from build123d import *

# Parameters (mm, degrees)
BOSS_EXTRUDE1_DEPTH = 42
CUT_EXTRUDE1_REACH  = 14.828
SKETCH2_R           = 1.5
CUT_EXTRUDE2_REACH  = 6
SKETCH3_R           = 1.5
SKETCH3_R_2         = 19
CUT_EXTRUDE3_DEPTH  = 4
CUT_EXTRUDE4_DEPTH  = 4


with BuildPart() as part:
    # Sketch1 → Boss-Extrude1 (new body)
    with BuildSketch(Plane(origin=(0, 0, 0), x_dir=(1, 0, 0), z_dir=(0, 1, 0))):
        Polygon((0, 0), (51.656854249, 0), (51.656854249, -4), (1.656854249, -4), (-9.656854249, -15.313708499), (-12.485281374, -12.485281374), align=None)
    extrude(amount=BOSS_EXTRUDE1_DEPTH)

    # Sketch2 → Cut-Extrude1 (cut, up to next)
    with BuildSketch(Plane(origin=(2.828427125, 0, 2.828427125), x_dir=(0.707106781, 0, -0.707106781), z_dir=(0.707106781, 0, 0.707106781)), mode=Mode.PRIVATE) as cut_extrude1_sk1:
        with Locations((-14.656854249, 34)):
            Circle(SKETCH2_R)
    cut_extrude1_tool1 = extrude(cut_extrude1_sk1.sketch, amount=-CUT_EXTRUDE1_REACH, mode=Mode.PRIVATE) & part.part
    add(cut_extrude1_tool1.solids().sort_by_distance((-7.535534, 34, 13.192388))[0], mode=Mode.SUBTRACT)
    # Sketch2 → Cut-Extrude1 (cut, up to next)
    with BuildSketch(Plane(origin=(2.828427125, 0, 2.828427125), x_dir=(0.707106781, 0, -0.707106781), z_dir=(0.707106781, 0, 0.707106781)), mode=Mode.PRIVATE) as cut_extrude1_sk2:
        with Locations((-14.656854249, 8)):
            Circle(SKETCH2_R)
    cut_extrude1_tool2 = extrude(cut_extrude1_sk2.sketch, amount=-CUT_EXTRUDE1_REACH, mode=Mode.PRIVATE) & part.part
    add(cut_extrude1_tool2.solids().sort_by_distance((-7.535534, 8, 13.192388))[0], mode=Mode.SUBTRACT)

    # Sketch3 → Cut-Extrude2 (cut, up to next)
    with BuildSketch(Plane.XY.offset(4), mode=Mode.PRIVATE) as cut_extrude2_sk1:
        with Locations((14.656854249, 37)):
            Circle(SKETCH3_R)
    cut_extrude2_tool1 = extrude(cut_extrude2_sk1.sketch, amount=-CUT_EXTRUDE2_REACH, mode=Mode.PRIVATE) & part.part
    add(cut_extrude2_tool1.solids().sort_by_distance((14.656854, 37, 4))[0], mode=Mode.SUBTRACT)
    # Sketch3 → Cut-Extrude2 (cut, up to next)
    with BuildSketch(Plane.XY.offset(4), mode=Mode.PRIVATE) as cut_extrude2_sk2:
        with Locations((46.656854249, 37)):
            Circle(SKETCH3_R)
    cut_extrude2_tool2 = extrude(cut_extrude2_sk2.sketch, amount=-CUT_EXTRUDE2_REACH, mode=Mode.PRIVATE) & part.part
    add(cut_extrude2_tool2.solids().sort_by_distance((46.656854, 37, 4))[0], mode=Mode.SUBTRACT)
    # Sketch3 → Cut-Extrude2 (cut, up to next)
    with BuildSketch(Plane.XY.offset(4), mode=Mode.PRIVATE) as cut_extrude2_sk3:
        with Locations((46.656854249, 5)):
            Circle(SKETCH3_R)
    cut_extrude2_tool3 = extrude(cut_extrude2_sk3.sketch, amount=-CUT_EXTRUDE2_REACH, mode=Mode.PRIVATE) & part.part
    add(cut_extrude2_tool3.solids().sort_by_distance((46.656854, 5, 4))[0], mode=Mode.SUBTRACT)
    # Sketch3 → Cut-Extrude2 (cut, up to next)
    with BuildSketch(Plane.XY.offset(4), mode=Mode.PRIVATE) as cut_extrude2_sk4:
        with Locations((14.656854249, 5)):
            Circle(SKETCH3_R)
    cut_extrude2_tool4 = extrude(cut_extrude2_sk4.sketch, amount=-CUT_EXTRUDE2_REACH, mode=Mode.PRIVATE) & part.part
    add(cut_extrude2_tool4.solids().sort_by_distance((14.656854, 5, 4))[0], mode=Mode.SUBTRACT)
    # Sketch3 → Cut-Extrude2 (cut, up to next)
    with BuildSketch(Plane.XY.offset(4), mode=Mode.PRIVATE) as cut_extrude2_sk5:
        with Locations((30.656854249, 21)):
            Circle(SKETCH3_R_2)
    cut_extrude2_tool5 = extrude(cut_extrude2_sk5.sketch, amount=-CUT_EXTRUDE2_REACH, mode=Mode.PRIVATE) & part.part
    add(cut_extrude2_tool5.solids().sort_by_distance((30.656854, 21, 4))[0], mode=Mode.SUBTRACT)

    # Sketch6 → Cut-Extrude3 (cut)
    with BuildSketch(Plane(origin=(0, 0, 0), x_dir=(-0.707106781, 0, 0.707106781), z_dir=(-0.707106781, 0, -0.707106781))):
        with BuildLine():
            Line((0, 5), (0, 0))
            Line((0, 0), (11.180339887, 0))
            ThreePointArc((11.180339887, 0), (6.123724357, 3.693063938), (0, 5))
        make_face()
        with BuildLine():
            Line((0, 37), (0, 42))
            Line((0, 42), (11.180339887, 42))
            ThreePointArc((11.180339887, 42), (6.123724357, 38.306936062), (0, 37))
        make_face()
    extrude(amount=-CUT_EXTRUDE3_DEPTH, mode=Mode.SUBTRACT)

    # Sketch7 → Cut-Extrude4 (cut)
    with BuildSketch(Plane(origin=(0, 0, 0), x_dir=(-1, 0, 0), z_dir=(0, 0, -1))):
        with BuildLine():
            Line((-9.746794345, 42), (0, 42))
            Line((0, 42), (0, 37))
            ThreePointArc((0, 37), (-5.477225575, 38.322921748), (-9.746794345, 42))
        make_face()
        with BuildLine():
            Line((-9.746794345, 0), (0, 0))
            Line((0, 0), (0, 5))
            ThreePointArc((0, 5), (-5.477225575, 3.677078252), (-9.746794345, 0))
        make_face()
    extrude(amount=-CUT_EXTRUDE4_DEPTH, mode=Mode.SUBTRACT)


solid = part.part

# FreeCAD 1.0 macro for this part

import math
import FreeCAD as App
import Part
import Sketcher

V = App.Vector
Q = App.Units.Quantity

doc = App.newDocument("Part")
body = doc.addObject("PartDesign::Body", "Body")

# Sketch on XZ plane
sketch1 = body.newObject("Sketcher::SketchObject", "Sketch")
sketch1.AttachmentSupport = (doc.getObject("XZ_Plane"), [""])
sketch1.MapMode = "FlatFace"
sketch1.addGeometry([
    Part.LineSegment(V(51.656854, 0, 0), V(0, 0, 0)),  # 0
    Part.LineSegment(V(0, 0, 0), V(-12.485281, 12.485281, 0)),  # 1
    Part.LineSegment(V(-12.485281, 12.485281, 0), V(-9.656854, 15.313708, 0)),  # 2
    Part.LineSegment(V(-9.656854, 15.313708, 0), V(1.656854, 4, 0)),  # 3
    Part.LineSegment(V(1.656854, 4, 0), V(51.656854, 4, 0)),  # 4
    Part.LineSegment(V(51.656854, 4, 0), V(51.656854, 0, 0)),  # 5
], False)
sketch1.addConstraint([
    Sketcher.Constraint("Coincident", 0, 2, 1, 1),
    Sketcher.Constraint("Coincident", 1, 2, 2, 1),
    Sketcher.Constraint("Coincident", 2, 2, 3, 1),
    Sketcher.Constraint("Coincident", 3, 2, 4, 1),
    Sketcher.Constraint("Coincident", 4, 2, 5, 1),
    Sketcher.Constraint("Coincident", 5, 2, 0, 1),
    Sketcher.Constraint("Horizontal", 0),
    Sketcher.Constraint("Horizontal", 4),
    Sketcher.Constraint("Vertical", 5),
    Sketcher.Constraint("Coincident", 0, 2, -1, 1),
    Sketcher.Constraint("Perpendicular", 1, 2),
    Sketcher.Constraint("Perpendicular", 2, 3),
    Sketcher.Constraint("DistanceX", 4, 1, 4, 2, 50.0),
    Sketcher.Constraint("DistanceY", 5, 2, 5, 1, 4.0),
    Sketcher.Constraint("Angle", 1, Q("135 deg")),
    Sketcher.Constraint("Distance", 2, 4.0),
    Sketcher.Constraint("Distance", 3, 16.0),
])
pad1 = body.newObject("PartDesign::Pad", "Pad")
pad1.Profile = sketch1
pad1.Length = 42
pad1.Reversed = True

# Sketch on an angled plane
sketch2 = body.newObject("Sketcher::SketchObject", "Sketch001")
sketch2.Placement = App.Placement(V(2.828427, 0, 2.828427), App.Rotation(V(0.707106781, 0, -0.707106781), V(0, 0.999999999, 0), V(0.707106781, 0, 0.707106781), "ZXY"))
sketch2.addGeometry(Part.Circle(V(-14.656854, 34, 0), V(0, 0, 1), 1.5), False)
sketch2.addConstraint([
    Sketcher.Constraint("Diameter", 0, 3.0),
    Sketcher.Constraint("DistanceY", -1, 1, 0, 3, 34.0),
    Sketcher.Constraint("DistanceX", 0, 3, -1, 1, 14.656854),
])
pocket1 = body.newObject("PartDesign::Pocket", "Pocket")
pocket1.Profile = sketch2
pocket1.Type = "UpToFirst"

# Sketch on an angled plane
sketch3 = body.newObject("Sketcher::SketchObject", "Sketch002")
sketch3.Placement = App.Placement(V(2.828427, 0, 2.828427), App.Rotation(V(0.707106781, 0, -0.707106781), V(0, 0.999999999, 0), V(0.707106781, 0, 0.707106781), "ZXY"))
sketch3.addGeometry(Part.Circle(V(-14.656854, 8, 0), V(0, 0, 1), 1.5), False)
sketch3.addConstraint([
    Sketcher.Constraint("Diameter", 0, 3.0),
    Sketcher.Constraint("DistanceY", -1, 1, 0, 3, 8.0),
    Sketcher.Constraint("DistanceX", 0, 3, -1, 1, 14.656854),
])
pocket2 = body.newObject("PartDesign::Pocket", "Pocket001")
pocket2.Profile = sketch3
pocket2.Type = "UpToFirst"

# Sketch on XY plane
sketch4 = body.newObject("Sketcher::SketchObject", "Sketch003")
sketch4.AttachmentSupport = (doc.getObject("XY_Plane"), [""])
sketch4.MapMode = "FlatFace"
sketch4.AttachmentOffset = App.Placement(V(0, 0, 4), App.Rotation())
sketch4.addGeometry(Part.Circle(V(14.656854, 37, 0), V(0, 0, 1), 1.5), False)
sketch4.addConstraint([
    Sketcher.Constraint("Diameter", 0, 3.0),
    Sketcher.Constraint("DistanceY", -1, 1, 0, 3, 37.0),
    Sketcher.Constraint("DistanceX", -1, 1, 0, 3, 14.656854),
])
pocket3 = body.newObject("PartDesign::Pocket", "Pocket002")
pocket3.Profile = sketch4
pocket3.Type = "UpToFirst"

# Sketch on XY plane
sketch5 = body.newObject("Sketcher::SketchObject", "Sketch004")
sketch5.AttachmentSupport = (doc.getObject("XY_Plane"), [""])
sketch5.MapMode = "FlatFace"
sketch5.AttachmentOffset = App.Placement(V(0, 0, 4), App.Rotation())
sketch5.addGeometry(Part.Circle(V(46.656854, 37, 0), V(0, 0, 1), 1.5), False)
sketch5.addConstraint([
    Sketcher.Constraint("Diameter", 0, 3.0),
    Sketcher.Constraint("DistanceY", -1, 1, 0, 3, 37.0),
    Sketcher.Constraint("DistanceX", -1, 1, 0, 3, 46.656854),
])
pocket4 = body.newObject("PartDesign::Pocket", "Pocket003")
pocket4.Profile = sketch5
pocket4.Type = "UpToFirst"

# Sketch on XY plane
sketch6 = body.newObject("Sketcher::SketchObject", "Sketch005")
sketch6.AttachmentSupport = (doc.getObject("XY_Plane"), [""])
sketch6.MapMode = "FlatFace"
sketch6.AttachmentOffset = App.Placement(V(0, 0, 4), App.Rotation())
sketch6.addGeometry(Part.Circle(V(46.656854, 5, 0), V(0, 0, 1), 1.5), False)
sketch6.addConstraint([
    Sketcher.Constraint("Diameter", 0, 3.0),
    Sketcher.Constraint("DistanceY", -1, 1, 0, 3, 5.0),
    Sketcher.Constraint("DistanceX", -1, 1, 0, 3, 46.656854),
])
pocket5 = body.newObject("PartDesign::Pocket", "Pocket004")
pocket5.Profile = sketch6
pocket5.Type = "UpToFirst"

# Sketch on XY plane
sketch7 = body.newObject("Sketcher::SketchObject", "Sketch006")
sketch7.AttachmentSupport = (doc.getObject("XY_Plane"), [""])
sketch7.MapMode = "FlatFace"
sketch7.AttachmentOffset = App.Placement(V(0, 0, 4), App.Rotation())
sketch7.addGeometry(Part.Circle(V(14.656854, 5, 0), V(0, 0, 1), 1.5), False)
sketch7.addConstraint([
    Sketcher.Constraint("Diameter", 0, 3.0),
    Sketcher.Constraint("DistanceY", -1, 1, 0, 3, 5.0),
    Sketcher.Constraint("DistanceX", -1, 1, 0, 3, 14.656854),
])
pocket6 = body.newObject("PartDesign::Pocket", "Pocket005")
pocket6.Profile = sketch7
pocket6.Type = "UpToFirst"

# Sketch on XY plane
sketch8 = body.newObject("Sketcher::SketchObject", "Sketch007")
sketch8.AttachmentSupport = (doc.getObject("XY_Plane"), [""])
sketch8.MapMode = "FlatFace"
sketch8.AttachmentOffset = App.Placement(V(0, 0, 4), App.Rotation())
sketch8.addGeometry(Part.Circle(V(30.656854, 21, 0), V(0, 0, 1), 19), False)
sketch8.addConstraint([
    Sketcher.Constraint("Diameter", 0, 38.0),
    Sketcher.Constraint("DistanceY", -1, 1, 0, 3, 21.0),
    Sketcher.Constraint("DistanceX", -1, 1, 0, 3, 30.656854),
])
pocket7 = body.newObject("PartDesign::Pocket", "Pocket006")
pocket7.Profile = sketch8
pocket7.Type = "UpToFirst"

# Sketch on an angled plane
sketch9 = body.newObject("Sketcher::SketchObject", "Sketch008")
sketch9.Placement = App.Placement(V(0, 0, 0), App.Rotation(V(-0.707106781, 0, 0.707106781), V(0, 0.999999999, 0), V(-0.707106781, 0, -0.707106781), "ZXY"))
sketch9.addGeometry([
    Part.LineSegment(V(0, 5, 0), V(0, 0, 0)),  # 0
    Part.LineSegment(V(0, 0, 0), V(11.18034, 0, 0)),  # 1
    Part.ArcOfCircle(Part.Circle(V(0, -10, 0), V(0, 0, 1), 15), math.radians(41.810315), math.radians(90)),  # 2
    Part.LineSegment(V(0, 42, 0), V(0, 37, 0)),  # 3
    Part.ArcOfCircle(Part.Circle(V(0, 52, 0), V(0, 0, 1), 15), math.radians(-90), math.radians(-41.810315)),  # 4
    Part.LineSegment(V(11.18034, 42, 0), V(0, 42, 0)),  # 5
], False)
sketch9.addConstraint([
    Sketcher.Constraint("Coincident", 0, 2, 1, 1),
    Sketcher.Constraint("Coincident", 1, 2, 2, 1),
    Sketcher.Constraint("Coincident", 2, 2, 0, 1),
    Sketcher.Constraint("Coincident", 3, 2, 4, 1),
    Sketcher.Constraint("Coincident", 4, 2, 5, 1),
    Sketcher.Constraint("Coincident", 5, 2, 3, 1),
    Sketcher.Constraint("Vertical", 0),
    Sketcher.Constraint("Horizontal", 1),
    Sketcher.Constraint("Vertical", 3),
    Sketcher.Constraint("Horizontal", 5),
    Sketcher.Constraint("Coincident", 0, 2, -1, 1),
    Sketcher.Constraint("Equal", 2, 4),
    Sketcher.Constraint("PointOnObject", 2, 3, -2),
    Sketcher.Constraint("PointOnObject", 4, 3, -2),
    Sketcher.Constraint("PointOnObject", 3, 2, -2),
    Sketcher.Constraint("Vertical", 1, 2, 4, 2),
    Sketcher.Constraint("Radius", 2, 15.0),
    Sketcher.Constraint("DistanceY", 0, 2, 0, 1, 5.0),
    Sketcher.Constraint("DistanceY", -1, 1, 4, 3, 52.0),
])
pocket8 = body.newObject("PartDesign::Pocket", "Pocket007")
pocket8.Profile = sketch9
pocket8.Length = 4

# Sketch on XY plane
sketch10 = body.newObject("Sketcher::SketchObject", "Sketch009")
sketch10.AttachmentSupport = (doc.getObject("XY_Plane"), [""])
sketch10.MapMode = "FlatFace"
sketch10.addGeometry([
    Part.LineSegment(V(0, 42, 0), V(9.746794, 42, 0)),  # 0
    Part.ArcOfCircle(Part.Circle(V(0, 49, 0), V(0, 0, 1), 12), math.radians(-90), math.radians(-35.685335)),  # 1
    Part.LineSegment(V(0, 37, 0), V(0, 42, 0)),  # 2
    Part.LineSegment(V(9.746794, 0, 0), V(0, 0, 0)),  # 3
    Part.LineSegment(V(0, 0, 0), V(0, 5, 0)),  # 4
    Part.ArcOfCircle(Part.Circle(V(0, -7, 0), V(0, 0, 1), 12), math.radians(35.685335), math.radians(90)),  # 5
], False)
sketch10.addConstraint([
    Sketcher.Constraint("Coincident", 0, 2, 1, 2),
    Sketcher.Constraint("Coincident", 1, 1, 2, 1),
    Sketcher.Constraint("Coincident", 2, 2, 0, 1),
    Sketcher.Constraint("Coincident", 3, 2, 4, 1),
    Sketcher.Constraint("Coincident", 4, 2, 5, 2),
    Sketcher.Constraint("Coincident", 5, 1, 3, 1),
    Sketcher.Constraint("Horizontal", 0),
    Sketcher.Constraint("Vertical", 2),
    Sketcher.Constraint("Horizontal", 3),
    Sketcher.Constraint("Vertical", 4),
    Sketcher.Constraint("Coincident", 3, 2, -1, 1),
    Sketcher.Constraint("Equal", 1, 5),
    Sketcher.Constraint("PointOnObject", 1, 3, -2),
    Sketcher.Constraint("PointOnObject", 5, 3, -2),
    Sketcher.Constraint("PointOnObject", 1, 1, -2),
    Sketcher.Constraint("Vertical", 0, 2, 5, 1),
    Sketcher.Constraint("Radius", 1, 12.0),
    Sketcher.Constraint("DistanceY", 2, 1, 2, 2, 5.0),
    Sketcher.Constraint("DistanceY", -1, 1, 1, 3, 49.0),
])
pocket9 = body.newObject("PartDesign::Pocket", "Pocket008")
pocket9.Profile = sketch10
pocket9.Length = 4
pocket9.Reversed = True

doc.recompute()
